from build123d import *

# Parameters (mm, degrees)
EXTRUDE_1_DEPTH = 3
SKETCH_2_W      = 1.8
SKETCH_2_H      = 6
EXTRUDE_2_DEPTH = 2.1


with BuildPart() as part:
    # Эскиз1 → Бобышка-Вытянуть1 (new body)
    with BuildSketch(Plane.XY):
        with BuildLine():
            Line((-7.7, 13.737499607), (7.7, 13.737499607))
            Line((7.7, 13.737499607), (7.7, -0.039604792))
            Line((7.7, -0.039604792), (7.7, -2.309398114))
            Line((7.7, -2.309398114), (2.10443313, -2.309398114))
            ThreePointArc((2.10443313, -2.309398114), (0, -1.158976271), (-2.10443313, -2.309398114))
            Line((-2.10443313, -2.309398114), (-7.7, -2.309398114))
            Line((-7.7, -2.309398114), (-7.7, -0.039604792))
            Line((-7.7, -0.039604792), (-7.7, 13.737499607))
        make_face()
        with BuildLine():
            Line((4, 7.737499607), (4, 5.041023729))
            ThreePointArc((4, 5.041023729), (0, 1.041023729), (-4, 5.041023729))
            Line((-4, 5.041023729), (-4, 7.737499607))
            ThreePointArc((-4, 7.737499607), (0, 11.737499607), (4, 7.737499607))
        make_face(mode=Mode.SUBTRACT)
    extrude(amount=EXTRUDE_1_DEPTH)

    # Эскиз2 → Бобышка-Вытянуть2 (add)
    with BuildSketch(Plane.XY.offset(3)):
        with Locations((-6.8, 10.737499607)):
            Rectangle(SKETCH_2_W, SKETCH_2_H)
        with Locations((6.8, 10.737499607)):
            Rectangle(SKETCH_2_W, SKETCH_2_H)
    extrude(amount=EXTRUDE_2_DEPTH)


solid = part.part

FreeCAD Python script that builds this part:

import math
import FreeCAD as App
import Part
import Sketcher
Q = App.Units.Quantity

doc = App.newDocument("Part")
body = doc.addObject("PartDesign::Body", "Body")

sketch1 = doc.addObject("Sketcher::SketchObject", "Sketch")
body.addObject(sketch1)
sketch1.AttachmentSupport = (doc.XY_Plane, [""])
sketch1.MapMode = "FlatFace"
sketch1.addGeometry(Part.LineSegment(App.Vector(7.7, 13.7, 0), App.Vector(-7.7, 13.7, 0)), False)
sketch1.addGeometry(Part.LineSegment(App.Vector(-7.7, 13.7, 0), App.Vector(-7.7, -2.3, 0)), False)
sketch1.addGeometry(Part.LineSegment(App.Vector(-7.7, -2.3, 0), App.Vector(-2.1, -2.3, 0)), False)
sketch1.addGeometry(Part.ArcOfCircle(Part.Circle(App.Vector(0, -3.7, 0), App.Vector(0, 0, 1), 2.5), math.radians(33), math.radians(147)), False)
sketch1.addGeometry(Part.LineSegment(App.Vector(2.1, -2.3, 0), App.Vector(7.7, -2.3, 0)), False)
sketch1.addGeometry(Part.LineSegment(App.Vector(7.7, -2.3, 0), App.Vector(7.7, 13.7, 0)), False)
sketch1.addGeometry(Part.LineSegment(App.Vector(4, 7.7, 0), App.Vector(4, 5, 0)), False)
sketch1.addGeometry(Part.ArcOfCircle(Part.Circle(App.Vector(0, 5, 0), App.Vector(0, 0, 1), 4), math.radians(180), math.radians(360)), False)
sketch1.addGeometry(Part.LineSegment(App.Vector(-4, 5, 0), App.Vector(-4, 7.7, 0)), False)
sketch1.addGeometry(Part.ArcOfCircle(Part.Circle(App.Vector(0, 7.7, 0), App.Vector(0, 0, 1), 4), math.radians(0), math.radians(180)), False)
sketch1.addConstraint(Sketcher.Constraint("Coincident", 0, 2, 1, 1))
sketch1.addConstraint(Sketcher.Constraint("Coincident", 1, 2, 2, 1))
sketch1.addConstraint(Sketcher.Constraint("Coincident", 2, 2, 3, 2))
sketch1.addConstraint(Sketcher.Constraint("Coincident", 3, 1, 4, 1))
sketch1.addConstraint(Sketcher.Constraint("Coincident", 4, 2, 5, 1))
sketch1.addConstraint(Sketcher.Constraint("Coincident", 5, 2, 0, 1))
sketch1.addConstraint(Sketcher.Constraint("Tangent", 6, 2, 7, 2))
sketch1.addConstraint(Sketcher.Constraint("Tangent", 7, 1, 8, 1))
sketch1.addConstraint(Sketcher.Constraint("Tangent", 8, 2, 9, 2))
sketch1.addConstraint(Sketcher.Constraint("Tangent", 9, 1, 6, 1))
sketch1.addConstraint(Sketcher.Constraint("Horizontal", 0))
sketch1.addConstraint(Sketcher.Constraint("Vertical", 1))
sketch1.addConstraint(Sketcher.Constraint("Horizontal", 2))
sketch1.addConstraint(Sketcher.Constraint("Horizontal", 4))
sketch1.addConstraint(Sketcher.Constraint("Vertical", 5))
sketch1.addConstraint(Sketcher.Constraint("Vertical", 6))
sketch1.addConstraint(Sketcher.Constraint("Vertical", 8))
sketch1.addConstraint(Sketcher.Constraint("Symmetric", 2, 2, 3, 1, -2))
sketch1.addConstraint(Sketcher.Constraint("PointOnObject", 7, 3, -2))
sketch1.addConstraint(Sketcher.Constraint("Equal", 2, 4))
sketch1.addConstraint(Sketcher.Constraint("Radius", 7, Q("4 mm")))
sketch1.addConstraint(Sketcher.Constraint("Radius", 3, Q("2.5 mm")))
sketch1.addConstraint(Sketcher.Constraint("DistanceX", 0, 2, 0, 1, Q("15.4 mm")))
sketch1.addConstraint(Sketcher.Constraint("DistanceY", 9, 3, 0, 2, Q("6 mm")))
sketch1.addConstraint(Sketcher.Constraint("DistanceY", 3, 3, 7, 3, Q("8.7 mm")))
sketch1.addConstraint(Sketcher.Constraint("DistanceY", -1, 1, 9, 3, Q("7.7375 mm")))
sketch1.addConstraint(Sketcher.Constraint("DistanceY", 1, 2, -1, 1, Q("2.309398 mm")))
sketch1.addConstraint(Sketcher.Constraint("DistanceX", 2, 1, 2, 2, Q("5.595567 mm")))
pad1 = doc.addObject("PartDesign::Pad", "Pad")
body.addObject(pad1)
pad1.Profile = sketch1
pad1.Length = 3

sketch2 = doc.addObject("Sketcher::SketchObject", "Sketch001")
body.addObject(sketch2)
sketch2.AttachmentSupport = (doc.XY_Plane, [""])
sketch2.MapMode = "FlatFace"
sketch2.AttachmentOffset = App.Placement(App.Vector(0, 0, 3), App.Rotation())
sketch2.addGeometry(Part.LineSegment(App.Vector(-7.7, 13.7, 0), App.Vector(-7.7, 7.7, 0)), False)
sketch2.addGeometry(Part.LineSegment(App.Vector(-7.7, 7.7, 0), App.Vector(-5.9, 7.7, 0)), False)
sketch2.addGeometry(Part.LineSegment(App.Vector(-5.9, 7.7, 0), App.Vector(-5.9, 13.7, 0)), False)
sketch2.addGeometry(Part.LineSegment(App.Vector(-5.9, 13.7, 0), App.Vector(-7.7, 13.7, 0)), False)
sketch2.addGeometry(Part.LineSegment(App.Vector(5.9, 13.7, 0), App.Vector(5.9, 7.7, 0)), False)
sketch2.addGeometry(Part.LineSegment(App.Vector(5.9, 7.7, 0), App.Vector(7.7, 7.7, 0)), False)
sketch2.addGeometry(Part.LineSegment(App.Vector(7.7, 7.7, 0), App.Vector(7.7, 13.7, 0)), False)
sketch2.addGeometry(Part.LineSegment(App.Vector(7.7, 13.7, 0), App.Vector(5.9, 13.7, 0)), False)
sketch2.addConstraint(Sketcher.Constraint("Coincident", 0, 2, 1, 1))
sketch2.addConstraint(Sketcher.Constraint("Coincident", 1, 2, 2, 1))
sketch2.addConstraint(Sketcher.Constraint("Coincident", 2, 2, 3, 1))
sketch2.addConstraint(Sketcher.Constraint("Coincident", 3, 2, 0, 1))
sketch2.addConstraint(Sketcher.Constraint("Coincident", 4, 2, 5, 1))
sketch2.addConstraint(Sketcher.Constraint("Coincident", 5, 2, 6, 1))
sketch2.addConstraint(Sketcher.Constraint("Coincident", 6, 2, 7, 1))
sketch2.addConstraint(Sketcher.Constraint("Coincident", 7, 2, 4, 1))
sketch2.addConstraint(Sketcher.Constraint("Vertical", 0))
sketch2.addConstraint(Sketcher.Constraint("Horizontal", 1))
sketch2.addConstraint(Sketcher.Constraint("Vertical", 2))
sketch2.addConstraint(Sketcher.Constraint("Horizontal", 3))
sketch2.addConstraint(Sketcher.Constraint("Vertical", 4))
sketch2.addConstraint(Sketcher.Constraint("Horizontal", 5))
sketch2.addConstraint(Sketcher.Constraint("Vertical", 6))
sketch2.addConstraint(Sketcher.Constraint("Horizontal", 7))
sketch2.addConstraint(Sketcher.Constraint("Symmetric", 1, 2, 4, 2, -2))
sketch2.addConstraint(Sketcher.Constraint("Symmetric", 3, 2, 6, 2, -2))
sketch2.addConstraint(Sketcher.Constraint("DistanceY", 0, 2, 0, 1, Q("6 mm")))
sketch2.addConstraint(Sketcher.Constraint("DistanceX", 1, 1, 1, 2, Q("1.8 mm")))
sketch2.addConstraint(Sketcher.Constraint("DistanceX", 0, 2, -1, 1, Q("7.7 mm")))
sketch2.addConstraint(Sketcher.Constraint("DistanceY", -1, 1, 0, 2, Q("7.7375 mm")))
pad2 = doc.addObject("PartDesign::Pad", "Pad001")
body.addObject(pad2)
pad2.Profile = sketch2
pad2.Length = 2.1

doc.recompute()
